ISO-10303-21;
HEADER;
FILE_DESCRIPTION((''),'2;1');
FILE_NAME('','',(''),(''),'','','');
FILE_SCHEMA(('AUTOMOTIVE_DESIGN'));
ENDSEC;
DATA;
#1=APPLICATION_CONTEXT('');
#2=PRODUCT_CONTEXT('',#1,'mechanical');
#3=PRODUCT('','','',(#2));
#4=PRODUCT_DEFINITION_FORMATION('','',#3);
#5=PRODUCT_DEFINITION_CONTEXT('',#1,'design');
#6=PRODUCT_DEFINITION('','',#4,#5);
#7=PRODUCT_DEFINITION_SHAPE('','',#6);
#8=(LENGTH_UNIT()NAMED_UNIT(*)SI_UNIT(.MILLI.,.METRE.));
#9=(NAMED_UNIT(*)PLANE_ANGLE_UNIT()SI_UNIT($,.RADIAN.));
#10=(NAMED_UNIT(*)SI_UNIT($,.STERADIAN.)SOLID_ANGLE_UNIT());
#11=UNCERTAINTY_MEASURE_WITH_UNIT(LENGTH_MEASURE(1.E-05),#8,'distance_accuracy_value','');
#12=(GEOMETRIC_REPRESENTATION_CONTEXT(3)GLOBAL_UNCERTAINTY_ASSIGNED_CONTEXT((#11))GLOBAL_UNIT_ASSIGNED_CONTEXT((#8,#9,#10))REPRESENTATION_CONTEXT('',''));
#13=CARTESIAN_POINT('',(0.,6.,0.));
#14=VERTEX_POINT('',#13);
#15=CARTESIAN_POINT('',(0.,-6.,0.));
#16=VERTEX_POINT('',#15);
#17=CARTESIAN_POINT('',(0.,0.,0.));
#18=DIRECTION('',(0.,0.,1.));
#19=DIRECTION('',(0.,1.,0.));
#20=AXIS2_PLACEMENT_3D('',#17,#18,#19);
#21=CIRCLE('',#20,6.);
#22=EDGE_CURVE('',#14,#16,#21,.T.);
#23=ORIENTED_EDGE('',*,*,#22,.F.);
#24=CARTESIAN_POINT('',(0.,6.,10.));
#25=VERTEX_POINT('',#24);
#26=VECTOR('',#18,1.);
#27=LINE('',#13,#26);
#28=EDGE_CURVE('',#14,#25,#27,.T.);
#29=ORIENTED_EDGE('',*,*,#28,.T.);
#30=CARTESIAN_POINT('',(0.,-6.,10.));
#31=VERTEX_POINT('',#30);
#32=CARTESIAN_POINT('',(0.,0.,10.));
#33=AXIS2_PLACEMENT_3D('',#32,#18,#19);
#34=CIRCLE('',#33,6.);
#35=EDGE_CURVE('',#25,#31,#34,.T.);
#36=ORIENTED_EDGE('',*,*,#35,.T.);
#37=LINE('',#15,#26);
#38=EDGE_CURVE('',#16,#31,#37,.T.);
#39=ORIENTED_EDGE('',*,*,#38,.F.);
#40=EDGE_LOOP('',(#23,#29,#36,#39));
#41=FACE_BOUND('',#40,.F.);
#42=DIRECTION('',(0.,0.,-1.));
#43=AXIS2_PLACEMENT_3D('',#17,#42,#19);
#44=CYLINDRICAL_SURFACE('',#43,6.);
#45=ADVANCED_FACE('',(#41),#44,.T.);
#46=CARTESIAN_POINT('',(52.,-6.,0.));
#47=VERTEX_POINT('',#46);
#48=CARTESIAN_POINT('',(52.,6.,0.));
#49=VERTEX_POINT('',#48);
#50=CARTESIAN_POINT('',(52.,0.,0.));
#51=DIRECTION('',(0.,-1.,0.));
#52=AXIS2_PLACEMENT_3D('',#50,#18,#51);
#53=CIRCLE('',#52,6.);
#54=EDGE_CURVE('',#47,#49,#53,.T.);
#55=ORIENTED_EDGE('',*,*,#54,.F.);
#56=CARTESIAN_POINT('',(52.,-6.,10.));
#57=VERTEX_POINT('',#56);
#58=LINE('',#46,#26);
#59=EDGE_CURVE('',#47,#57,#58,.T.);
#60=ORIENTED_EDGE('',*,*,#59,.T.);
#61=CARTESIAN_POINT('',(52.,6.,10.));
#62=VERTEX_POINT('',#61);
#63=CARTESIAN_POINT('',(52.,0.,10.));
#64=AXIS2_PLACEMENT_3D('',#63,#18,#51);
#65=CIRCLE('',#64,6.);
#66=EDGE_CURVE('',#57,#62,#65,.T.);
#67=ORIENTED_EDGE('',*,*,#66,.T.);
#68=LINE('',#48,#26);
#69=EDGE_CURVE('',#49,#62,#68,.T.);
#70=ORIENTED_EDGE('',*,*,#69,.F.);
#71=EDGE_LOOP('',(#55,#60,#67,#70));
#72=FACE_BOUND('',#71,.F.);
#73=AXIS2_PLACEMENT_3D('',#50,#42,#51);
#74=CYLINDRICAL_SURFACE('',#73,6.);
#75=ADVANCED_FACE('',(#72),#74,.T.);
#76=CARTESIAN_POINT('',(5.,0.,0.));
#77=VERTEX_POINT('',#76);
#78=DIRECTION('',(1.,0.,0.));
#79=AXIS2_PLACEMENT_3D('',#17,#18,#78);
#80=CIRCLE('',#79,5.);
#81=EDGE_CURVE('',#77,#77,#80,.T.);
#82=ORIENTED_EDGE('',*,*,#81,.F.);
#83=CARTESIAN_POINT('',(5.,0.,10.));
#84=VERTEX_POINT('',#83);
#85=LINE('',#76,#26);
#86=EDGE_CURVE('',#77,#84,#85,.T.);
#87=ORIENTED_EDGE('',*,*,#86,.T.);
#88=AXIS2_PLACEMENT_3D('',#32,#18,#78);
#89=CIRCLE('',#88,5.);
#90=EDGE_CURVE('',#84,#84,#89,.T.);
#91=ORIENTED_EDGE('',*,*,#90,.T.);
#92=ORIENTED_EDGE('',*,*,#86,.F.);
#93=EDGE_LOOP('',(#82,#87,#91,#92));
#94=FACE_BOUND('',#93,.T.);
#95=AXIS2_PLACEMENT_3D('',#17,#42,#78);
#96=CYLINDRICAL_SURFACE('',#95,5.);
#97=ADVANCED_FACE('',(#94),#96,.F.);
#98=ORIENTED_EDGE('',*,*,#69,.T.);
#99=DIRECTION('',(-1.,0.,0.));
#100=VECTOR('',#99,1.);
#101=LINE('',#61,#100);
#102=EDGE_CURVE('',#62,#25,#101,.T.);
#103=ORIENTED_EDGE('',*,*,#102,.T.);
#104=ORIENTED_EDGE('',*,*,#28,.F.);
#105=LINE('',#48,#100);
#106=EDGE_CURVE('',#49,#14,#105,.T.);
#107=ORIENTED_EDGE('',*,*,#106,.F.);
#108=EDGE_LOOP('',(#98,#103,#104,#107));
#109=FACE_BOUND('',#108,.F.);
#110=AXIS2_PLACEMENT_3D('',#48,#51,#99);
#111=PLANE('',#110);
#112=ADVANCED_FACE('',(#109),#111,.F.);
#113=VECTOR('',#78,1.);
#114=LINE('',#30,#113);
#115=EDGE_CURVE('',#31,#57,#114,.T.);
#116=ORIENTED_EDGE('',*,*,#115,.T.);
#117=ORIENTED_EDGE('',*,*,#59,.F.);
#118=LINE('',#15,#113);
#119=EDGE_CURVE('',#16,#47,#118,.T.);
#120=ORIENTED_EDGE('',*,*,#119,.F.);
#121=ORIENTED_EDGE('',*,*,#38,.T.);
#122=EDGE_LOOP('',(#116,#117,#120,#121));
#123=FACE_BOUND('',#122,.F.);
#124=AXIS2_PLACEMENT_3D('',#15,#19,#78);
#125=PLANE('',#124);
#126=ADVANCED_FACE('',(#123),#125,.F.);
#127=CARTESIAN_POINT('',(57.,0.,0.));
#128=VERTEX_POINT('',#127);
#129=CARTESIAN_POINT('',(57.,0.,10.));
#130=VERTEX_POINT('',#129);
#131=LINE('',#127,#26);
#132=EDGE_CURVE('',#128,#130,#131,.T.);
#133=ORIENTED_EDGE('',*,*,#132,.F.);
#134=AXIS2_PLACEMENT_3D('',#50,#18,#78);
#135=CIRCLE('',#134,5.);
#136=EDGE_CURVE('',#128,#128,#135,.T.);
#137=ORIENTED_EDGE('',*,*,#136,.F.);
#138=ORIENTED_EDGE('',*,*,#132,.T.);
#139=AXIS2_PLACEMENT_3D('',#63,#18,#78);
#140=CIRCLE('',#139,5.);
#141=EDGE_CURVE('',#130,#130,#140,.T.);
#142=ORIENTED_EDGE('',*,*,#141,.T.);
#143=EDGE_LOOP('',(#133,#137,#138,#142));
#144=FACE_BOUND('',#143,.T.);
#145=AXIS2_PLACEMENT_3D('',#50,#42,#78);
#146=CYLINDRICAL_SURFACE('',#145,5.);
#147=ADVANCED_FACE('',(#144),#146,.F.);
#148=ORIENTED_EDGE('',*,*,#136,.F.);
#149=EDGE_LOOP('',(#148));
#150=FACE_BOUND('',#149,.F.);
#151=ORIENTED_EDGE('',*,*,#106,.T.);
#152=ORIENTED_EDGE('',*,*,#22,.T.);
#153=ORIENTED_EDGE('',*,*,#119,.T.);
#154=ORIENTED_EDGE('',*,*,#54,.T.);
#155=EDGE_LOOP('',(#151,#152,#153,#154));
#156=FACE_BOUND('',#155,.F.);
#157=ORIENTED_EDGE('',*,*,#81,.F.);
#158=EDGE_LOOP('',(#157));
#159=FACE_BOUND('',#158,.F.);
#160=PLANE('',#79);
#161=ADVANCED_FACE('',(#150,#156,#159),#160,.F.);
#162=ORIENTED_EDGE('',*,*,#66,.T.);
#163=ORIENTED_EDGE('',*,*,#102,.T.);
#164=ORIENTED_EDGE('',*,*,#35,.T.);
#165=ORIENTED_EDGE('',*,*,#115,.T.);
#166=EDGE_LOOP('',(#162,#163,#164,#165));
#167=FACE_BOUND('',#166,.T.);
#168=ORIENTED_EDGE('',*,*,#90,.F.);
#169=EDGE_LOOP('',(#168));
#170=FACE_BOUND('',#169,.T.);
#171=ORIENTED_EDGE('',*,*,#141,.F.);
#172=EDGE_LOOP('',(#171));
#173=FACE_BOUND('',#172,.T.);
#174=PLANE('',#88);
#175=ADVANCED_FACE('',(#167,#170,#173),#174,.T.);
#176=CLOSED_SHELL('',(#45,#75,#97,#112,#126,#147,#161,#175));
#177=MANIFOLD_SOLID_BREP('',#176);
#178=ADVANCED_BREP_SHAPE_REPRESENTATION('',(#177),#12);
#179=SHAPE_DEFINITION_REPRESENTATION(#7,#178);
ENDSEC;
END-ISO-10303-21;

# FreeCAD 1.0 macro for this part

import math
import FreeCAD as App
import Part
import Sketcher

doc = App.newDocument("Part")
body = doc.addObject("PartDesign::Body", "Body")

# Sketch on XY plane
sketch1 = doc.addObject("Sketcher::SketchObject", "Sketch")
body.addObject(sketch1)
sketch1.AttachmentSupport = (doc.XY_Plane, [""])
sketch1.MapMode = "FlatFace"
sketch1.addGeometry(Part.ArcOfCircle(Part.Circle(App.Vector(0, 0, 0), App.Vector(0, 0, 1), 6), math.radians(90), math.radians(270)), False)
sketch1.addGeometry(Part.LineSegment(App.Vector(0, -6, 0), App.Vector(52, -6, 0)), False)
sketch1.addGeometry(Part.ArcOfCircle(Part.Circle(App.Vector(52, 0, 0), App.Vector(0, 0, 1), 6), math.radians(-90), math.radians(90)), False)
sketch1.addGeometry(Part.LineSegment(App.Vector(52, 6, 0), App.Vector(0, 6, 0)), False)
sketch1.addGeometry(Part.Circle(App.Vector(0, 0, 0), App.Vector(0, 0, 1), 5), False)
sketch1.addGeometry(Part.Circle(App.Vector(52, 0, 0), App.Vector(0, 0, 1), 5), False)
sketch1.addConstraint(Sketcher.Constraint("Tangent", 0, 2, 1, 1))
sketch1.addConstraint(Sketcher.Constraint("Tangent", 1, 2, 2, 1))
sketch1.addConstraint(Sketcher.Constraint("Tangent", 2, 2, 3, 1))
sketch1.addConstraint(Sketcher.Constraint("Tangent", 3, 2, 0, 1))
sketch1.addConstraint(Sketcher.Constraint("Horizontal", 1))
sketch1.addConstraint(Sketcher.Constraint("Horizontal", 3))
sketch1.addConstraint(Sketcher.Constraint("Coincident", 0, 3, -1, 1))
sketch1.addConstraint(Sketcher.Constraint("Coincident", 4, 3, -1, 1))
sketch1.addConstraint(Sketcher.Constraint("Coincident", 5, 3, 2, 3))
sketch1.addConstraint(Sketcher.Constraint("Equal", 4, 5))
sketch1.addConstraint(Sketcher.Constraint("Diameter", 4, 10.0))
sketch1.addConstraint(Sketcher.Constraint("Radius", 0, 6.0))
sketch1.addConstraint(Sketcher.Constraint("DistanceX", 1, 1, 1, 2, 52.0))
pad1 = doc.addObject("PartDesign::Pad", "Pad")
body.addObject(pad1)
pad1.Profile = sketch1
pad1.Length = 10

doc.recompute()
